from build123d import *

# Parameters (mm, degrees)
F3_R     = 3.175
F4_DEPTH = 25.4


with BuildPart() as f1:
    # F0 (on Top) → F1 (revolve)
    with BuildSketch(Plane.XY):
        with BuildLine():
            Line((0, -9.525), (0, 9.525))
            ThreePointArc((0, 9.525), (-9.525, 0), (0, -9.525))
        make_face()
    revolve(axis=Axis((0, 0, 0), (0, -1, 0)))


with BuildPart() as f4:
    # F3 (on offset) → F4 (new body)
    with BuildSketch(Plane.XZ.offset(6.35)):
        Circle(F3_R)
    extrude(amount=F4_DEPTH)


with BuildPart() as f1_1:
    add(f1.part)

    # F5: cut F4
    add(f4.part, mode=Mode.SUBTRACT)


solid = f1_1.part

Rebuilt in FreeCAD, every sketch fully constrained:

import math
import FreeCAD as App
import Part
import Sketcher
from FreeCAD import Vector
Q = App.Units.Quantity

doc = App.newDocument("Part")
body = doc.addObject("PartDesign::Body", "Body")

# Sketch on XY plane
sketch1 = body.newObject("Sketcher::SketchObject", "Sketch")
sketch1.AttachmentSupport = (doc.getObject("XY_Plane"), [""])
sketch1.MapMode = "FlatFace"
sketch1.addGeometry(Part.LineSegment(Vector(0, -9.525, 0), Vector(0, 9.525, 0)), False)
sketch1.addGeometry(Part.ArcOfCircle(Part.Circle(Vector(0, 0, 0), Vector(0, 0, 1), 9.525), math.radians(90), math.radians(270)), False)
sketch1.addConstraint(Sketcher.Constraint("Coincident", 0, 1, 1, 2))
sketch1.addConstraint(Sketcher.Constraint("Coincident", 1, 1, 0, 2))
sketch1.addConstraint(Sketcher.Constraint("Vertical", 0))
sketch1.addConstraint(Sketcher.Constraint("Coincident", 1, 3, -1, 1))
sketch1.addConstraint(Sketcher.Constraint("PointOnObject", 0, 1, -2))
sketch1.addConstraint(Sketcher.Constraint("Radius", 1, Q("0.375 in")))
revolution = body.newObject("PartDesign::Revolution", "Revolution")
revolution.Profile = sketch1
revolution.ReferenceAxis = (sketch1, ["V_Axis"])
revolution.Angle = 360
body2 = doc.addObject("PartDesign::Body", "Body001")

# Sketch on XZ plane
sketch2 = body2.newObject("Sketcher::SketchObject", "Sketch001")
sketch2.AttachmentSupport = (doc.getObject("XZ_Plane001"), [""])
sketch2.MapMode = "FlatFace"
sketch2.AttachmentOffset = App.Placement(Vector(0, 0, 0.25 * 25.4), App.Rotation())
sketch2.addGeometry(Part.Circle(Vector(0, 0, 0), Vector(0, 0, 1), 3.175), False)
sketch2.addConstraint(Sketcher.Constraint("Coincident", 0, 3, -1, 1))
sketch2.addConstraint(Sketcher.Constraint("Diameter", 0, Q("0.25 in")))
pad1 = body2.newObject("PartDesign::Pad", "Pad")
pad1.Profile = sketch2
pad1.Length = Q("1 in")
doc.recompute()

boolean = body.newObject("PartDesign::Boolean", "Boolean")
boolean.Type = "Cut"
boolean.addObjects([body2])

doc.recompute()
